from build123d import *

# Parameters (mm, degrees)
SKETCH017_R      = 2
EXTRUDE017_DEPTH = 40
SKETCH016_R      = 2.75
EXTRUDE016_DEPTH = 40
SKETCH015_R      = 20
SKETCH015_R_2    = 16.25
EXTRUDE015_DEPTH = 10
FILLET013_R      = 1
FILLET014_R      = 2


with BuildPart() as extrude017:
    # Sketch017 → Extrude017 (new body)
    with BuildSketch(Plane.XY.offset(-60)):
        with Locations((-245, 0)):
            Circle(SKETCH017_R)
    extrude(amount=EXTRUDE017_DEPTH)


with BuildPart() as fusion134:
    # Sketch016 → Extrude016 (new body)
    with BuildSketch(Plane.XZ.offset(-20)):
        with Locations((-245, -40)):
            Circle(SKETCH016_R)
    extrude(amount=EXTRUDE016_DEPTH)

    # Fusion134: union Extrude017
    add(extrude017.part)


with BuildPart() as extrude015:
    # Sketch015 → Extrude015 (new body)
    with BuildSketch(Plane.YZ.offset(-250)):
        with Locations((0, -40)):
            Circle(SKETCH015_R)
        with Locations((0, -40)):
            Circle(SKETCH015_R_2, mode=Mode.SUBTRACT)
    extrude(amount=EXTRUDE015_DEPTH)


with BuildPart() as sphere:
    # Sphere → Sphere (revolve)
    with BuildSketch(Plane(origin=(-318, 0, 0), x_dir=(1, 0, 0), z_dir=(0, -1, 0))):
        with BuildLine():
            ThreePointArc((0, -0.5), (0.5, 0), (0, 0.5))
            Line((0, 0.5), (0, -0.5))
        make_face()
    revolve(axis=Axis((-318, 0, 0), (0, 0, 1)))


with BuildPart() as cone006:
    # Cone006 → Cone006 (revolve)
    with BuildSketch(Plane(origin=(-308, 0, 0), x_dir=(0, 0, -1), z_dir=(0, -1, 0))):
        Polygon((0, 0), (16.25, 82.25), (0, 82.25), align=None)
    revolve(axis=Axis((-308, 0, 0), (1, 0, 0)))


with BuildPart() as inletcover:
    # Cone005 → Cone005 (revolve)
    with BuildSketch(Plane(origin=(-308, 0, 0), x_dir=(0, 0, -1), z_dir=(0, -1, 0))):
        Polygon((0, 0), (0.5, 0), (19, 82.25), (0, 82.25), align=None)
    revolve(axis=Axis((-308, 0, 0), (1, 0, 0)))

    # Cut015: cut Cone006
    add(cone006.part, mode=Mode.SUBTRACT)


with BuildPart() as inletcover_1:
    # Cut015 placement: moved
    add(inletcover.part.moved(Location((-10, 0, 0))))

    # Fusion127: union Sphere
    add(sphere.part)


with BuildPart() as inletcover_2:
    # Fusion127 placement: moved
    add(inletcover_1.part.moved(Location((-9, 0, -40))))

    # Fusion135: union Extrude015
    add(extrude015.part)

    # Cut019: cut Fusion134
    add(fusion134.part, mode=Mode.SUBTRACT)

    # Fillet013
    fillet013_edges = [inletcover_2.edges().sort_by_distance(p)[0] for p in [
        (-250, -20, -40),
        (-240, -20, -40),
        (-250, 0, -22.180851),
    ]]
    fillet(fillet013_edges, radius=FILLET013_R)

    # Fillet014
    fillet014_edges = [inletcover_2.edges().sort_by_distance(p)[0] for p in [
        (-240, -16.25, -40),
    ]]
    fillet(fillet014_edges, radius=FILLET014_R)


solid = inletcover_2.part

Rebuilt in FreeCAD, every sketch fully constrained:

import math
import FreeCAD as App
import Part
import Sketcher
Q = App.Units.Quantity


def edges_at(feature, points):
    """Names of the edges that pass closest to the given points."""
    edges = feature.Shape.Edges
    near = lambda p: min(range(len(edges)), key=lambda i: edges[i].distToShape(Part.Vertex(*p))[0])
    return sorted({f"Edge{near(p) + 1}" for p in points})

doc = App.newDocument("Part")
body = doc.addObject("PartDesign::Body", "Body")

sketch1 = body.newObject("Sketcher::SketchObject", "Sketch")
sketch1.AttachmentSupport = (doc.getObject("XY_Plane"), [""])
sketch1.MapMode = "FlatFace"
sketch1.AttachmentOffset = App.Placement(App.Vector(0, 0, -60), App.Rotation())
sketch1.addGeometry(Part.Circle(App.Vector(-245, 0, 0), App.Vector(0, 0, 1), 2), False)
sketch1.addConstraint([
    Sketcher.Constraint("PointOnObject", 0, 3, -1),
    Sketcher.Constraint("Diameter", 0, Q("4 mm")),
    Sketcher.Constraint("DistanceX", 0, 3, -1, 1, Q("245 mm")),
])
pad1 = body.newObject("PartDesign::Pad", "Pad")
pad1.Profile = sketch1
pad1.Length = 40
body2 = doc.addObject("PartDesign::Body", "Body001")

sketch2 = body2.newObject("Sketcher::SketchObject", "Sketch001")
sketch2.AttachmentSupport = (doc.getObject("XZ_Plane001"), [""])
sketch2.MapMode = "FlatFace"
sketch2.AttachmentOffset = App.Placement(App.Vector(0, 0, -20), App.Rotation())
sketch2.addGeometry(Part.Circle(App.Vector(-245, -40, 0), App.Vector(0, 0, 1), 2.8), False)
sketch2.addConstraint([
    Sketcher.Constraint("Diameter", 0, Q("5.5 mm")),
    Sketcher.Constraint("DistanceX", 0, 3, -1, 1, Q("245 mm")),
    Sketcher.Constraint("DistanceY", 0, 3, -1, 1, Q("40 mm")),
])
pad2 = body2.newObject("PartDesign::Pad", "Pad001")
pad2.Profile = sketch2
pad2.Length = 40
doc.recompute()

boolean = body2.newObject("PartDesign::Boolean", "Boolean")
boolean.Type = "Fuse"
boolean.addObjects([body])
body3 = doc.addObject("PartDesign::Body", "Body002")

sketch3 = body3.newObject("Sketcher::SketchObject", "Sketch002")
sketch3.AttachmentSupport = (doc.getObject("YZ_Plane002"), [""])
sketch3.MapMode = "FlatFace"
sketch3.AttachmentOffset = App.Placement(App.Vector(0, 0, -250), App.Rotation())
sketch3.addGeometry([
    Part.Circle(App.Vector(0, -40, 0), App.Vector(0, 0, 1), 20),
    Part.Circle(App.Vector(0, -40, 0), App.Vector(0, 0, 1), 16),
], False)
sketch3.addConstraint([
    Sketcher.Constraint("Coincident", 1, 3, 0, 3),
    Sketcher.Constraint("PointOnObject", 0, 3, -2),
    Sketcher.Constraint("Diameter", 0, Q("40 mm")),
    Sketcher.Constraint("Diameter", 1, Q("32.5 mm")),
    Sketcher.Constraint("DistanceY", 0, 3, -1, 1, Q("40 mm")),
])
pad3 = body3.newObject("PartDesign::Pad", "Pad002")
pad3.Profile = sketch3
pad3.Length = 10
body4 = doc.addObject("PartDesign::Body", "Body003")

sketch4 = body4.newObject("Sketcher::SketchObject", "Sketch003")
sketch4.AttachmentSupport = (doc.getObject("XZ_Plane003"), [""])
sketch4.MapMode = "FlatFace"
sketch4.addGeometry([
    Part.ArcOfCircle(Part.Circle(App.Vector(-318, 0, 0), App.Vector(0, 0, 1), 0.5), math.radians(-90), math.radians(90)),
    Part.LineSegment(App.Vector(-318, 0.5, 0), App.Vector(-318, -0.5, 0)),
], False)
sketch4.addGeometry(Part.LineSegment(App.Vector(-318, -0.5, 0), App.Vector(-318, 0.5, 0)), True)
sketch4.addConstraint([
    Sketcher.Constraint("Coincident", 0, 1, 1, 2),
    Sketcher.Constraint("Coincident", 1, 1, 0, 2),
    Sketcher.Constraint("Vertical", 1),
    Sketcher.Constraint("Vertical", 2),
    Sketcher.Constraint("Coincident", 2, 1, 0, 1),
    Sketcher.Constraint("PointOnObject", 0, 3, -1),
    Sketcher.Constraint("Equal", 1, 2),
    Sketcher.Constraint("Radius", 0, Q("0.5 mm")),
    Sketcher.Constraint("DistanceX", 0, 3, -1, 1, Q("318 mm")),
    Sketcher.Constraint("DistanceX", 0, 1, -1, 1, Q("318 mm")),
])
revolution = body4.newObject("PartDesign::Revolution", "Revolution")
revolution.Profile = sketch4
revolution.ReferenceAxis = (sketch4, ["Axis0"])
revolution.Angle = 360
body5 = doc.addObject("PartDesign::Body", "Body004")

sketch5 = body5.newObject("Sketcher::SketchObject", "Sketch004")
sketch5.AttachmentSupport = (doc.getObject("XZ_Plane004"), [""])
sketch5.MapMode = "FlatFace"
sketch5.addGeometry([
    Part.LineSegment(App.Vector(-308, 0, 0), App.Vector(-226, -16, 0)),
    Part.LineSegment(App.Vector(-226, -16, 0), App.Vector(-226, 0, 0)),
    Part.LineSegment(App.Vector(-226, 0, 0), App.Vector(-308, 0, 0)),
], False)
sketch5.addConstraint([
    Sketcher.Constraint("Coincident", 0, 2, 1, 1),
    Sketcher.Constraint("Coincident", 1, 2, 2, 1),
    Sketcher.Constraint("Coincident", 2, 2, 0, 1),
    Sketcher.Constraint("Vertical", 1),
    Sketcher.Constraint("Horizontal", 2),
    Sketcher.Constraint("PointOnObject", 1, 2, -1),
    Sketcher.Constraint("DistanceX", 2, 2, -1, 1, Q("308 mm")),
    Sketcher.Constraint("DistanceX", 2, 2, 2, 1, Q("82.25 mm")),
    Sketcher.Constraint("DistanceY", 1, 1, 1, 2, Q("16.25 mm")),
])
revolution2 = body5.newObject("PartDesign::Revolution", "Revolution001")
revolution2.Profile = sketch5
revolution2.ReferenceAxis = (sketch5, ["H_Axis"])
revolution2.Angle = 360
body6 = doc.addObject("PartDesign::Body", "Body005")

sketch6 = body6.newObject("Sketcher::SketchObject", "Sketch005")
sketch6.AttachmentSupport = (doc.getObject("XZ_Plane005"), [""])
sketch6.MapMode = "FlatFace"
sketch6.addGeometry([
    Part.LineSegment(App.Vector(-308, 0, 0), App.Vector(-308, -0.5, 0)),
    Part.LineSegment(App.Vector(-308, -0.5, 0), App.Vector(-225.8, -19, 0)),
    Part.LineSegment(App.Vector(-225.8, -19, 0), App.Vector(-225.8, 0, 0)),
    Part.LineSegment(App.Vector(-225.8, 0, 0), App.Vector(-308, 0, 0)),
], False)
sketch6.addConstraint([
    Sketcher.Constraint("Coincident", 0, 2, 1, 1),
    Sketcher.Constraint("Coincident", 1, 2, 2, 1),
    Sketcher.Constraint("Coincident", 2, 2, 3, 1),
    Sketcher.Constraint("Coincident", 3, 2, 0, 1),
    Sketcher.Constraint("Vertical", 0),
    Sketcher.Constraint("Vertical", 2),
    Sketcher.Constraint("Horizontal", 3),
    Sketcher.Constraint("PointOnObject", 2, 2, -1),
    Sketcher.Constraint("DistanceY", 2, 1, 2, 2, Q("19 mm")),
    Sketcher.Constraint("DistanceY", 0, 2, 0, 1, Q("0.5 mm")),
    Sketcher.Constraint("DistanceX", 0, 2, -1, 1, Q("308 mm")),
    Sketcher.Constraint("DistanceX", 3, 2, 3, 1, Q("82.25 mm")),
])
revolution3 = body6.newObject("PartDesign::Revolution", "Revolution002")
revolution3.Profile = sketch6
revolution3.ReferenceAxis = (sketch6, ["H_Axis"])
revolution3.Angle = 360
doc.recompute()

boolean2 = body6.newObject("PartDesign::Boolean", "Boolean001")
boolean2.Type = "Cut"
boolean2.addObjects([body5])
body7 = doc.addObject("PartDesign::Body", "Body006")
doc.recompute()

body6.Placement = App.Placement(App.Vector(-10, 0, 0), App.Rotation(App.Vector(0, 0, 1), 0))
boolean3 = body7.newObject("PartDesign::Boolean", "Boolean002")
boolean3.Type = "Fuse"
boolean3.addObjects([body6])
doc.recompute()

boolean4 = body7.newObject("PartDesign::Boolean", "Boolean003")
boolean4.Type = "Fuse"
boolean4.addObjects([body4])
body8 = doc.addObject("PartDesign::Body", "Body007")
doc.recompute()

body7.Placement = App.Placement(App.Vector(-9, 0, -40), App.Rotation(App.Vector(0, 0, 1), 0))
boolean5 = body8.newObject("PartDesign::Boolean", "Boolean004")
boolean5.Type = "Fuse"
boolean5.addObjects([body7])
doc.recompute()

boolean6 = body8.newObject("PartDesign::Boolean", "Boolean005")
boolean6.Type = "Fuse"
boolean6.addObjects([body3])
doc.recompute()

boolean7 = body8.newObject("PartDesign::Boolean", "Boolean006")
boolean7.Type = "Cut"
boolean7.addObjects([body2])
doc.recompute()

fillet = body8.newObject("PartDesign::Fillet", "Fillet")
fillet.Base = (boolean7, edges_at(boolean7, [(-250, -20, -40), (-240, -20, -40), (-250, 0, -22.181)]))
fillet.Radius = 1
doc.recompute()

fillet2 = body8.newObject("PartDesign::Fillet", "Fillet001")
fillet2.Base = (fillet, edges_at(fillet, [(-240, -16.25, -40)]))
fillet2.Radius = 2

doc.recompute()
